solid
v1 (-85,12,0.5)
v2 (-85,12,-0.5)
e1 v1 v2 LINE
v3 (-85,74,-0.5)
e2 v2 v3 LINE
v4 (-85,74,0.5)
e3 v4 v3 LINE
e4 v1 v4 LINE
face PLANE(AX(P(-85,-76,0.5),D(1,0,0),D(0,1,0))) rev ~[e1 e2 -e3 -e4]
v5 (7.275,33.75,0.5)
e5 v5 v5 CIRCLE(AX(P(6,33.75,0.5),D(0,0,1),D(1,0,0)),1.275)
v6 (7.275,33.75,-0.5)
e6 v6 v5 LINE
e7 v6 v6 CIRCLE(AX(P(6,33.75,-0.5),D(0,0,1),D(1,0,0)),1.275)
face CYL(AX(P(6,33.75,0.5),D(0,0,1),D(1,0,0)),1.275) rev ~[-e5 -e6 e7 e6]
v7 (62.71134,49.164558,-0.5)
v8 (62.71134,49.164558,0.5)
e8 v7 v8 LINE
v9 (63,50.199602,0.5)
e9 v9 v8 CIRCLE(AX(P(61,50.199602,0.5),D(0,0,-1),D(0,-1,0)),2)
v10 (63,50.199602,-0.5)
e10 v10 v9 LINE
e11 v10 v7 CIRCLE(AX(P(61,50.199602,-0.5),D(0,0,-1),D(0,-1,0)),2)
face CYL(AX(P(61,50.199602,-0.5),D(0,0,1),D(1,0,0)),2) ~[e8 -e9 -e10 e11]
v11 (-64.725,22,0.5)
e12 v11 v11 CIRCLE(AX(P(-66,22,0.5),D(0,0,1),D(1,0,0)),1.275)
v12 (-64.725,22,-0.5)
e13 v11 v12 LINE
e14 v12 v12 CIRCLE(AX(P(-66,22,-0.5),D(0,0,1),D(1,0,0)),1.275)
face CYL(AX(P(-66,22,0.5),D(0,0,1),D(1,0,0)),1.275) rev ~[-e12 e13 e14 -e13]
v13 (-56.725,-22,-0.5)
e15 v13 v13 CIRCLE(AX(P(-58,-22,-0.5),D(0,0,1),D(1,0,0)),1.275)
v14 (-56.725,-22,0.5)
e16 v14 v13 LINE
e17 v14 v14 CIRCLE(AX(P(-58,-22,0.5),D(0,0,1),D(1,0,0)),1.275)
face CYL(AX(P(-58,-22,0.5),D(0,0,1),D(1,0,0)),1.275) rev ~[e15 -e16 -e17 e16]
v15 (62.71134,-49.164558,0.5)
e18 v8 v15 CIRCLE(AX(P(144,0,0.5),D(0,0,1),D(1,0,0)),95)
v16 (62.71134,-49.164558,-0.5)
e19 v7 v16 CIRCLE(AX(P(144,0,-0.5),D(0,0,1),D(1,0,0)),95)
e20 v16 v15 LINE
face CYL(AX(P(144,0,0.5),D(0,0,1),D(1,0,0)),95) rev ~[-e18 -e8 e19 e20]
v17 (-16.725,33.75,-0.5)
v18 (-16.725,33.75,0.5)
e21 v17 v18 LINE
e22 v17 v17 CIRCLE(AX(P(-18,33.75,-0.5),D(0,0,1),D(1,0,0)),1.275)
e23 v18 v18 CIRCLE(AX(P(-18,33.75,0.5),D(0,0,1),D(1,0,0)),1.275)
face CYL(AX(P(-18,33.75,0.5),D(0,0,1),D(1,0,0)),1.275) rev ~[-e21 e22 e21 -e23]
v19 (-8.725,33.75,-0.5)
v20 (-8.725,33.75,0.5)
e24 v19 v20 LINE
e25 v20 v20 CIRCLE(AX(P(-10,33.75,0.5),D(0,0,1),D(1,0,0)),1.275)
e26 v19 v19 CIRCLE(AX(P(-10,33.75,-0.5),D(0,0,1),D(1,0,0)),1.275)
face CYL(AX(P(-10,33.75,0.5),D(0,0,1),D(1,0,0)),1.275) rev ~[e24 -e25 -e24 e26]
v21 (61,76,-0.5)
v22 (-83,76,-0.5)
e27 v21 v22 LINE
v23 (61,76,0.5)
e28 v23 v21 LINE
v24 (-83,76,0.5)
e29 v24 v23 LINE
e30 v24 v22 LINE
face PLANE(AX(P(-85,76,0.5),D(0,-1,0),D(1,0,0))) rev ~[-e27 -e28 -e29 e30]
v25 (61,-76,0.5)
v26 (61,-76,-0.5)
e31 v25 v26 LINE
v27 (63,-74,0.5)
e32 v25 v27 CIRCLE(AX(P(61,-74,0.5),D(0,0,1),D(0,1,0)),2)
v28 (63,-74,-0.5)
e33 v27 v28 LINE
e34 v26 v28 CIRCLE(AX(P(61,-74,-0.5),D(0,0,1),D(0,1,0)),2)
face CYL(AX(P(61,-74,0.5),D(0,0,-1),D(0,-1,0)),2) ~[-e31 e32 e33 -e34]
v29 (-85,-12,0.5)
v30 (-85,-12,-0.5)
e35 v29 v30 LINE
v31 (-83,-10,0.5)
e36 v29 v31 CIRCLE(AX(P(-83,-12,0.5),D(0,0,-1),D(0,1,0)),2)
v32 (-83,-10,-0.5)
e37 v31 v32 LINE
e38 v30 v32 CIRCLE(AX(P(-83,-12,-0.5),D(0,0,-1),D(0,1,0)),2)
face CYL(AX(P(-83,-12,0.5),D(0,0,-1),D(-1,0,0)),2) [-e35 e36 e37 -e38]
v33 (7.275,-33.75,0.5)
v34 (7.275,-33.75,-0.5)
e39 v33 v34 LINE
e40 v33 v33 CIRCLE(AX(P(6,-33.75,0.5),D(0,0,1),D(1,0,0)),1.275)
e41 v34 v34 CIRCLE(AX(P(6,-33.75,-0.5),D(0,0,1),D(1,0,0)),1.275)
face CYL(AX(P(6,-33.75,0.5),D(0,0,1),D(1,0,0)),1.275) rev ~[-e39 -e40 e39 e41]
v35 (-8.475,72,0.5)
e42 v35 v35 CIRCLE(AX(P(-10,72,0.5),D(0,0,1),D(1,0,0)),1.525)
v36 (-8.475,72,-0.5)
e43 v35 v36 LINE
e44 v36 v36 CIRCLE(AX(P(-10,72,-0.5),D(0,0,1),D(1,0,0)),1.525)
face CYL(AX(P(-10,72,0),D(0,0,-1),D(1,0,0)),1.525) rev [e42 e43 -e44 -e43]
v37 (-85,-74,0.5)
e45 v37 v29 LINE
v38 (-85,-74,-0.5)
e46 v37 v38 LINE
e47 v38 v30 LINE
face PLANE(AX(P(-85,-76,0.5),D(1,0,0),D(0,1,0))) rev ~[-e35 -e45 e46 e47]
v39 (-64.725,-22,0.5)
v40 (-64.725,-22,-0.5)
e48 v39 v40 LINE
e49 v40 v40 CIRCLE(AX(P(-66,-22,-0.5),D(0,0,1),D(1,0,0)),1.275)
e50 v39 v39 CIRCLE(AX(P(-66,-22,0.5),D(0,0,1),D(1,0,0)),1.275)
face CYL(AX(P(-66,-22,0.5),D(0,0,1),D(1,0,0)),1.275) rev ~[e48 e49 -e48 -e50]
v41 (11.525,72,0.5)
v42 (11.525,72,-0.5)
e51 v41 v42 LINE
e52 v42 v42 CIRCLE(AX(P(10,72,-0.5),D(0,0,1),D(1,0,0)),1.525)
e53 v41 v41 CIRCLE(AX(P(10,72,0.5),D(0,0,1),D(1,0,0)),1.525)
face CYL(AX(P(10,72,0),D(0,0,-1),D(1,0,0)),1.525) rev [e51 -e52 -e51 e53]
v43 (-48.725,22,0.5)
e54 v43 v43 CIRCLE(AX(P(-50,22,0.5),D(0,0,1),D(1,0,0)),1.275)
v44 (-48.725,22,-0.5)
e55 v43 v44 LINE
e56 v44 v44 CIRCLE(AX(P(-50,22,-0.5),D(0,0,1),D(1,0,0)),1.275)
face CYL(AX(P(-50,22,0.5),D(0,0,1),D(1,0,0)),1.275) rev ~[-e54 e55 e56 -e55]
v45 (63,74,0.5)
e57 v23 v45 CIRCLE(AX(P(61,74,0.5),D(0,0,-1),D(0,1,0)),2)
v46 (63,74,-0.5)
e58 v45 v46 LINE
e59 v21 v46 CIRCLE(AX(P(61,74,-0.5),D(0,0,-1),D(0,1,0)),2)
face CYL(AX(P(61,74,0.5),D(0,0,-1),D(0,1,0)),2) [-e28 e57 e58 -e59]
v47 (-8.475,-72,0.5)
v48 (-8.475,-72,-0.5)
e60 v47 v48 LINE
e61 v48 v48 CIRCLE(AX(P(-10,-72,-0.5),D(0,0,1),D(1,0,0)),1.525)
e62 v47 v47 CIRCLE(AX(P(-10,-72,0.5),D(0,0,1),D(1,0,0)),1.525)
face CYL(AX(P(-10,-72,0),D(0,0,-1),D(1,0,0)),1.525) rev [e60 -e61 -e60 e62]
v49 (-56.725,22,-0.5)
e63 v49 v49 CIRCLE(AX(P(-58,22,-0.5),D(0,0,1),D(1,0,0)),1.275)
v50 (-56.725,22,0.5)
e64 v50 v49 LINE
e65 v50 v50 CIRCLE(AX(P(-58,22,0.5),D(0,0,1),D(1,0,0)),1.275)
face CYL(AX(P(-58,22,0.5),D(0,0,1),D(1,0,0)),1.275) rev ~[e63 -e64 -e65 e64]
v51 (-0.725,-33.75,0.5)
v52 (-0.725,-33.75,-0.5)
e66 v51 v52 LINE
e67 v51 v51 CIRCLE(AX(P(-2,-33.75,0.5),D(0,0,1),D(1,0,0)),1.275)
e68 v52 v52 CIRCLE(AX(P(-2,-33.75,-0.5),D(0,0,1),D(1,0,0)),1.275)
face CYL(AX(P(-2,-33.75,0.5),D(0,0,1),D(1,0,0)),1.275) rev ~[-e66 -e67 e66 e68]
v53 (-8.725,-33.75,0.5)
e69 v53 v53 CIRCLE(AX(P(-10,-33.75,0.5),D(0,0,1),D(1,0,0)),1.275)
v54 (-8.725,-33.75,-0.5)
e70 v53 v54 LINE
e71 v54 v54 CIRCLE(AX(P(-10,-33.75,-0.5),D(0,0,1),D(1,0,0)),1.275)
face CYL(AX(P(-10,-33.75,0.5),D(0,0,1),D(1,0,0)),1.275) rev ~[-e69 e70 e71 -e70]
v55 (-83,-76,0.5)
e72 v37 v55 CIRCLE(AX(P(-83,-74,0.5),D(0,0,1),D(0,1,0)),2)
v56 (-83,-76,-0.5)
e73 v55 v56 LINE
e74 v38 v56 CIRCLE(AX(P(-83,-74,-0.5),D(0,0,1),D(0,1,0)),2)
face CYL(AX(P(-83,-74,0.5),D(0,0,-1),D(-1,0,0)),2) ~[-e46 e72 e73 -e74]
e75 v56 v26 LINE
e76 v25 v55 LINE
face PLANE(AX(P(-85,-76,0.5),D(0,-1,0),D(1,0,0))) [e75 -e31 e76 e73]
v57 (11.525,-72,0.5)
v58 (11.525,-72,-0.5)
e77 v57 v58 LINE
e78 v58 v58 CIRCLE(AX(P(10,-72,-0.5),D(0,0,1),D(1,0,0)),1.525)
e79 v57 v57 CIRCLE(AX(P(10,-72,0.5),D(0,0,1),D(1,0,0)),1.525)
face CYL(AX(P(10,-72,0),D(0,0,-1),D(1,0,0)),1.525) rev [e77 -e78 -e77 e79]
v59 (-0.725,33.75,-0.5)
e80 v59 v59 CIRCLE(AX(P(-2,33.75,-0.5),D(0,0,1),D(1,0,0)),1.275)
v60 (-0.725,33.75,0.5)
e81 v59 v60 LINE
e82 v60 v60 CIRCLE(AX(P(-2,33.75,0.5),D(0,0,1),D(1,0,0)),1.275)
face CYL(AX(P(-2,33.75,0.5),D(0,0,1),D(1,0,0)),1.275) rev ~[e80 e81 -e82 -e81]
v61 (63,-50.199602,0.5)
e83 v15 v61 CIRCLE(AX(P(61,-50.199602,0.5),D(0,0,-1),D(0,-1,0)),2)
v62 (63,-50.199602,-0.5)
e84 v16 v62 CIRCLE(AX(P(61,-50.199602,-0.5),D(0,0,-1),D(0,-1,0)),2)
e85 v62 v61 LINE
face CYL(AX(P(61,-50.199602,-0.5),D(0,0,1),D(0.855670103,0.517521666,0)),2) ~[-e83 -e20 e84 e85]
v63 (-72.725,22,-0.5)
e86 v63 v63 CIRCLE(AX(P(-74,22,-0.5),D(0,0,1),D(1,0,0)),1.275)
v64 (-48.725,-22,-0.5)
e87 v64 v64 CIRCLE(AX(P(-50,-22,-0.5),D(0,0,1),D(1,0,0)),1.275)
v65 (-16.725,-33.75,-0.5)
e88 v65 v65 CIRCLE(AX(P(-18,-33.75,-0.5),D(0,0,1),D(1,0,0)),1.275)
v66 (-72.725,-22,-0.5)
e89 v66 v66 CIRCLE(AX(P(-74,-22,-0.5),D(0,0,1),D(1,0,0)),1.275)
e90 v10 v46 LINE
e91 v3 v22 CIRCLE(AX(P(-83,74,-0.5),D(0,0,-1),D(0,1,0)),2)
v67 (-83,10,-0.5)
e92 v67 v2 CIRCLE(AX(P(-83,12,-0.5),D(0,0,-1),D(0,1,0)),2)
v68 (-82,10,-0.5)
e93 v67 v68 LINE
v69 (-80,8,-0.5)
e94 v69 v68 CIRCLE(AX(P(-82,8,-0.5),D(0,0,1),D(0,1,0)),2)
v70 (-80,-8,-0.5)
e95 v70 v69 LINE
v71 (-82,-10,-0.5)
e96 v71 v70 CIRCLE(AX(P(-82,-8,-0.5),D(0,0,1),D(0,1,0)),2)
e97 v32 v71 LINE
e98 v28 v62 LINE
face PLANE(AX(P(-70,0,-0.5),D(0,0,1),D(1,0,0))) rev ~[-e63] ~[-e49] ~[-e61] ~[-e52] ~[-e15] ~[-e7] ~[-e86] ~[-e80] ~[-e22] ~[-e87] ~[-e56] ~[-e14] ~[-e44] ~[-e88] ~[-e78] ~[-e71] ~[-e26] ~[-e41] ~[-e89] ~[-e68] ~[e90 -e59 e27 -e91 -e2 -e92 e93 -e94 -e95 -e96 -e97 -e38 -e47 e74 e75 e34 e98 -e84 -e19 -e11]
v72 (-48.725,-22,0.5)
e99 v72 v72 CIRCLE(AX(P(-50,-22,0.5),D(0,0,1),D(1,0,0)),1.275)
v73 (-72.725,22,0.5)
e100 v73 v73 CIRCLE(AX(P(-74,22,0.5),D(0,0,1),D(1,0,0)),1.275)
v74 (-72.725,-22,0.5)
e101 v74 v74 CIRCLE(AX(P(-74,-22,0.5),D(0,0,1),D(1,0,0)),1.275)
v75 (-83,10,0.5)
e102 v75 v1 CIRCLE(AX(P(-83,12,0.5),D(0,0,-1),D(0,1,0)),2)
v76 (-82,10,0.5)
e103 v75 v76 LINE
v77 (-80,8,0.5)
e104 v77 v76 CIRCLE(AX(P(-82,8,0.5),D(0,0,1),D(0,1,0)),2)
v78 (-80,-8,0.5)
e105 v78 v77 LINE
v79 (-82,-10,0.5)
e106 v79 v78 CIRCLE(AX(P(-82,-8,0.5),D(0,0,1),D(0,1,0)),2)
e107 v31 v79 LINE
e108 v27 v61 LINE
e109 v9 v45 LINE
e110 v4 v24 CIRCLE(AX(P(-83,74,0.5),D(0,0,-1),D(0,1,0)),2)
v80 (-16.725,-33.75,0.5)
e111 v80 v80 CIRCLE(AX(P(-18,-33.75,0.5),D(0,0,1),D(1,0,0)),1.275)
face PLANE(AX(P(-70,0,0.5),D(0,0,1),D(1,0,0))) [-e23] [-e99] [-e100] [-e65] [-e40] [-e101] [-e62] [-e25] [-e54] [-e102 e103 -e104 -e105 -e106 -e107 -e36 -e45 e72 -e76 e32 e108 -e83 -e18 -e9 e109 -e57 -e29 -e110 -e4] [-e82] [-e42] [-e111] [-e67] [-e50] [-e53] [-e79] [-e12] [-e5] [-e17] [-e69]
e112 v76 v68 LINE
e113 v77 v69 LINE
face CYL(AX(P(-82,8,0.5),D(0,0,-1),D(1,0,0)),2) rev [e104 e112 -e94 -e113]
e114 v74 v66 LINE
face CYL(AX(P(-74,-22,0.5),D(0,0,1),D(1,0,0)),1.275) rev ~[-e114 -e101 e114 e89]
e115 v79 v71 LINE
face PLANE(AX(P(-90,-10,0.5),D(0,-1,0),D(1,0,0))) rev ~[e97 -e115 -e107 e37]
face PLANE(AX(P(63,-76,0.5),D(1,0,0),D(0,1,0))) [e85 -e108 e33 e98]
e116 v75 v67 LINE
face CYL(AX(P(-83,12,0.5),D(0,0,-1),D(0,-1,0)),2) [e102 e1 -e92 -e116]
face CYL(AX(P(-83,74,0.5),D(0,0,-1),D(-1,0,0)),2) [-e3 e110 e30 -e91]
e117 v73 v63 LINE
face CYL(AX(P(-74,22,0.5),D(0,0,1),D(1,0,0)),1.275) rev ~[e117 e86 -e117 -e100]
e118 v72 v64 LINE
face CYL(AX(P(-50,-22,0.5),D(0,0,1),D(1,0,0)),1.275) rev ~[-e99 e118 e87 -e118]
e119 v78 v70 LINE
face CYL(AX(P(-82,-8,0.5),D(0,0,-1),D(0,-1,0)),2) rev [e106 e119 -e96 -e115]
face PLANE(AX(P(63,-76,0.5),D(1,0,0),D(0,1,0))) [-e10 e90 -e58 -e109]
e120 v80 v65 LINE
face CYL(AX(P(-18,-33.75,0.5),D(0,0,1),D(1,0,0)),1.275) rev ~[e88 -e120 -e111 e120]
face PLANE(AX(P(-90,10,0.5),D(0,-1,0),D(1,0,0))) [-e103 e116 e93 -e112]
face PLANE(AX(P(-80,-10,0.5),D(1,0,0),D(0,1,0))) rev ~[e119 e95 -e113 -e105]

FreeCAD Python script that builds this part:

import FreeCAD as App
import Part
import Sketcher


def edges_at(feature, points):
    """Names of the edges that pass closest to the given points."""
    edges = feature.Shape.Edges
    near = lambda p: min(range(len(edges)), key=lambda i: edges[i].distToShape(Part.Vertex(*p))[0])
    return sorted({f"Edge{near(p) + 1}" for p in points})

doc = App.newDocument("Part")
body = doc.addObject("PartDesign::Body", "Body")

# Sketch on XY plane
sketch1 = body.newObject("Sketcher::SketchObject", "Sketch")
sketch1.AttachmentSupport = (doc.getObject("XY_Plane"), [""])
sketch1.MapMode = "FlatFace"
sketch1.addGeometry([
    Part.LineSegment(App.Vector(-55, 76, 0), App.Vector(-55, -76, 0)),  # 0
    Part.LineSegment(App.Vector(-55, -76, 0), App.Vector(34, -76, 0)),  # 1
    Part.LineSegment(App.Vector(34, -76, 0), App.Vector(34, 76, 0)),  # 2
    Part.LineSegment(App.Vector(34, 76, 0), App.Vector(-55, 76, 0)),  # 3
    Part.Circle(App.Vector(-10, -72, 0), App.Vector(0, 0, 1), 1.525),  # 4
    Part.Circle(App.Vector(10, -72, 0), App.Vector(0, 0, 1), 1.525),  # 5
    Part.Circle(App.Vector(-10, 72, 0), App.Vector(0, 0, 1), 1.525),  # 6
    Part.Circle(App.Vector(10, 72, 0), App.Vector(0, 0, 1), 1.525),  # 7
], False)
sketch1.addConstraint([
    Sketcher.Constraint("Coincident", 0, 2, 1, 1),
    Sketcher.Constraint("Coincident", 1, 2, 2, 1),
    Sketcher.Constraint("Coincident", 2, 2, 3, 1),
    Sketcher.Constraint("Coincident", 3, 2, 0, 1),
    Sketcher.Constraint("Vertical", 0),
    Sketcher.Constraint("Horizontal", 1),
    Sketcher.Constraint("Vertical", 2),
    Sketcher.Constraint("Horizontal", 3),
    Sketcher.Constraint("Equal", 4, 5),
    Sketcher.Constraint("Equal", 5, 6),
    Sketcher.Constraint("Equal", 6, 7),
    Sketcher.Constraint("Symmetric", 5, 3, 6, 3, -1, 1),
    Sketcher.Constraint("Symmetric", 4, 3, 7, 3, -1, 1),
    Sketcher.Constraint("Symmetric", 4, 3, 5, 3, -2),
    Sketcher.Constraint("Diameter", 4, 3.05),
    Sketcher.Constraint("DistanceX", 1, 1, 1, 2, 89.0),
    Sketcher.Constraint("DistanceY", 0, 2, 0, 1, 152.0),
    Sketcher.Constraint("DistanceX", 4, 3, -1, 1, 10.0),
    Sketcher.Constraint("DistanceY", 4, 3, -1, 1, 72.0),
    Sketcher.Constraint("DistanceX", 0, 2, -1, 1, 55.0),
    Sketcher.Constraint("DistanceY", 0, 2, -1, 1, 76.0),
])
pad1 = body.newObject("PartDesign::Pad", "Pad")
pad1.Profile = sketch1
pad1.Length = 1
pad1.Midplane = True

# Sketch on XY plane
sketch2 = body.newObject("Sketcher::SketchObject", "Sketch001")
sketch2.AttachmentSupport = (doc.getObject("XY_Plane"), [""])
sketch2.MapMode = "FlatFace"
sketch2.AttachmentOffset = App.Placement(App.Vector(0, 0, 0.5), App.Rotation())
sketch2.addGeometry([
    Part.Circle(App.Vector(-50, 22, 0), App.Vector(0, 0, 1), 1.275),
    Part.Circle(App.Vector(-50, -22, 0), App.Vector(0, 0, 1), 1.275),
    Part.Circle(App.Vector(6, -33.75, 0), App.Vector(0, 0, 1), 1.275),
    Part.Circle(App.Vector(6, 33.75, 0), App.Vector(0, 0, 1), 1.275),
], False)
sketch2.addConstraint([
    Sketcher.Constraint("Equal", 0, 1),
    Sketcher.Constraint("Equal", 1, 2),
    Sketcher.Constraint("Equal", 2, 3),
    Sketcher.Constraint("Symmetric", 0, 3, 1, 3, -1),
    Sketcher.Constraint("Symmetric", 2, 3, 3, 3, -1),
    Sketcher.Constraint("Diameter", 0, 2.55),
    Sketcher.Constraint("DistanceX", 0, 3, -1, 1, 50.0),
    Sketcher.Constraint("DistanceY", -1, 1, 0, 3, 22.0),
    Sketcher.Constraint("DistanceX", -1, 1, 2, 3, 6.0),
    Sketcher.Constraint("DistanceY", 2, 3, 3, 3, 67.5),
])
pocket1 = body.newObject("PartDesign::Pocket", "Pocket")
pocket1.Profile = sketch2
pocket1.Length = 10
pocket1.Midplane = True

# Sketch on XY plane
sketch3 = body.newObject("Sketcher::SketchObject", "Sketch002")
sketch3.AttachmentSupport = (doc.getObject("XY_Plane"), [""])
sketch3.MapMode = "FlatFace"
sketch3.AttachmentOffset = App.Placement(App.Vector(0, 0, 0.5), App.Rotation())
sketch3.addGeometry([
    Part.LineSegment(App.Vector(34, 76, 0), App.Vector(34, -76, 0)),
    Part.LineSegment(App.Vector(34, -76, 0), App.Vector(63, -76, 0)),
    Part.LineSegment(App.Vector(63, -76, 0), App.Vector(63, 76, 0)),
    Part.LineSegment(App.Vector(63, 76, 0), App.Vector(34, 76, 0)),
], False)
sketch3.addConstraint([
    Sketcher.Constraint("Coincident", 0, 2, 1, 1),
    Sketcher.Constraint("Coincident", 1, 2, 2, 1),
    Sketcher.Constraint("Coincident", 2, 2, 3, 1),
    Sketcher.Constraint("Coincident", 3, 2, 0, 1),
    Sketcher.Constraint("Vertical", 0),
    Sketcher.Constraint("Horizontal", 1),
    Sketcher.Constraint("Vertical", 2),
    Sketcher.Constraint("Horizontal", 3),
    Sketcher.Constraint("DistanceX", 1, 1, 1, 2, 29.0),
    Sketcher.Constraint("DistanceY", 0, 2, 0, 1, 152.0),
    Sketcher.Constraint("DistanceX", -1, 1, 0, 2, 34.0),
    Sketcher.Constraint("DistanceY", 0, 2, -1, 1, 76.0),
])
pad2 = body.newObject("PartDesign::Pad", "Pad001")
pad2.Profile = sketch3
pad2.Length = 1
pad2.Reversed = True

# Sketch on XY plane
sketch4 = body.newObject("Sketcher::SketchObject", "Sketch003")
sketch4.AttachmentSupport = (doc.getObject("XY_Plane"), [""])
sketch4.MapMode = "FlatFace"
sketch4.AttachmentOffset = App.Placement(App.Vector(0, 0, 0.5), App.Rotation())
sketch4.addGeometry(Part.Circle(App.Vector(144, 0, 0), App.Vector(0, 0, 1), 95), False)
sketch4.addConstraint([
    Sketcher.Constraint("PointOnObject", 0, 3, -1),
    Sketcher.Constraint("Diameter", 0, 190.0),
    Sketcher.Constraint("DistanceX", -1, 1, 0, 3, 144.0),
])
pocket2 = body.newObject("PartDesign::Pocket", "Pocket001")
pocket2.Profile = sketch4
pocket2.Length = 22

# Sketch on XY plane
sketch5 = body.newObject("Sketcher::SketchObject", "Sketch004")
sketch5.AttachmentSupport = (doc.getObject("XY_Plane"), [""])
sketch5.MapMode = "FlatFace"
sketch5.AttachmentOffset = App.Placement(App.Vector(0, 0, 0.5), App.Rotation())
sketch5.addGeometry([
    Part.LineSegment(App.Vector(-85, 76, 0), App.Vector(-85, -76, 0)),
    Part.LineSegment(App.Vector(-85, -76, 0), App.Vector(-55, -76, 0)),
    Part.LineSegment(App.Vector(-55, -76, 0), App.Vector(-55, 76, 0)),
    Part.LineSegment(App.Vector(-55, 76, 0), App.Vector(-85, 76, 0)),
], False)
sketch5.addConstraint([
    Sketcher.Constraint("Coincident", 0, 2, 1, 1),
    Sketcher.Constraint("Coincident", 1, 2, 2, 1),
    Sketcher.Constraint("Coincident", 2, 2, 3, 1),
    Sketcher.Constraint("Coincident", 3, 2, 0, 1),
    Sketcher.Constraint("Vertical", 0),
    Sketcher.Constraint("Horizontal", 1),
    Sketcher.Constraint("Vertical", 2),
    Sketcher.Constraint("Horizontal", 3),
    Sketcher.Constraint("DistanceX", 1, 1, 1, 2, 30.0),
    Sketcher.Constraint("DistanceY", 0, 2, 0, 1, 152.0),
    Sketcher.Constraint("DistanceX", 0, 2, -1, 1, 85.0),
    Sketcher.Constraint("DistanceY", 0, 2, -1, 1, 76.0),
])
pad3 = body.newObject("PartDesign::Pad", "Pad002")
pad3.Profile = sketch5
pad3.Length = 1
pad3.Reversed = True
doc.recompute()

linearpattern = body.newObject("PartDesign::LinearPattern", "LinearPattern")
linearpattern.Originals = [pocket1]
linearpattern.Direction = (doc.getObject("X_Axis"), [""])
linearpattern.Mode = "offset"
linearpattern.Offset = 8
linearpattern.Occurrences = 4
linearpattern.Reversed = True
body.Tip = linearpattern

# Sketch on XY plane
sketch6 = body.newObject("Sketcher::SketchObject", "Sketch005")
sketch6.AttachmentSupport = (doc.getObject("XY_Plane"), [""])
sketch6.MapMode = "FlatFace"
sketch6.AttachmentOffset = App.Placement(App.Vector(0, 0, 0.5), App.Rotation())
sketch6.addGeometry([
    Part.LineSegment(App.Vector(-90, 10, 0), App.Vector(-90, -10, 0)),
    Part.LineSegment(App.Vector(-90, -10, 0), App.Vector(-80, -10, 0)),
    Part.LineSegment(App.Vector(-80, -10, 0), App.Vector(-80, 10, 0)),
    Part.LineSegment(App.Vector(-80, 10, 0), App.Vector(-90, 10, 0)),
], False)
sketch6.addConstraint([
    Sketcher.Constraint("Coincident", 0, 2, 1, 1),
    Sketcher.Constraint("Coincident", 1, 2, 2, 1),
    Sketcher.Constraint("Coincident", 2, 2, 3, 1),
    Sketcher.Constraint("Coincident", 3, 2, 0, 1),
    Sketcher.Constraint("Vertical", 0),
    Sketcher.Constraint("Horizontal", 1),
    Sketcher.Constraint("Vertical", 2),
    Sketcher.Constraint("Horizontal", 3),
    Sketcher.Constraint("DistanceX", 1, 1, 1, 2, 10.0),
    Sketcher.Constraint("DistanceY", 0, 2, 0, 1, 20.0),
    Sketcher.Constraint("DistanceX", 0, 2, -1, 1, 90.0),
    Sketcher.Constraint("DistanceY", 0, 2, -1, 1, 10.0),
])
pocket3 = body.newObject("PartDesign::Pocket", "Pocket002")
pocket3.Profile = sketch6
pocket3.Length = 10
doc.recompute()

fillet = body.newObject("PartDesign::Fillet", "Fillet")
fillet.Base = (pocket3, edges_at(pocket3, [
    (-85, 10, 0),
    (-85, -10, 0),
    (-80, 10, 0),
    (-80, -10, 0),
    (63, 76, 0),
    (63, -76, 0),
    (63, -49.639, 0),
    (63, 49.639, 0),
    (-85, -76, 0),
    (-85, 76, 0),
]))
fillet.Radius = 2

doc.recompute()
